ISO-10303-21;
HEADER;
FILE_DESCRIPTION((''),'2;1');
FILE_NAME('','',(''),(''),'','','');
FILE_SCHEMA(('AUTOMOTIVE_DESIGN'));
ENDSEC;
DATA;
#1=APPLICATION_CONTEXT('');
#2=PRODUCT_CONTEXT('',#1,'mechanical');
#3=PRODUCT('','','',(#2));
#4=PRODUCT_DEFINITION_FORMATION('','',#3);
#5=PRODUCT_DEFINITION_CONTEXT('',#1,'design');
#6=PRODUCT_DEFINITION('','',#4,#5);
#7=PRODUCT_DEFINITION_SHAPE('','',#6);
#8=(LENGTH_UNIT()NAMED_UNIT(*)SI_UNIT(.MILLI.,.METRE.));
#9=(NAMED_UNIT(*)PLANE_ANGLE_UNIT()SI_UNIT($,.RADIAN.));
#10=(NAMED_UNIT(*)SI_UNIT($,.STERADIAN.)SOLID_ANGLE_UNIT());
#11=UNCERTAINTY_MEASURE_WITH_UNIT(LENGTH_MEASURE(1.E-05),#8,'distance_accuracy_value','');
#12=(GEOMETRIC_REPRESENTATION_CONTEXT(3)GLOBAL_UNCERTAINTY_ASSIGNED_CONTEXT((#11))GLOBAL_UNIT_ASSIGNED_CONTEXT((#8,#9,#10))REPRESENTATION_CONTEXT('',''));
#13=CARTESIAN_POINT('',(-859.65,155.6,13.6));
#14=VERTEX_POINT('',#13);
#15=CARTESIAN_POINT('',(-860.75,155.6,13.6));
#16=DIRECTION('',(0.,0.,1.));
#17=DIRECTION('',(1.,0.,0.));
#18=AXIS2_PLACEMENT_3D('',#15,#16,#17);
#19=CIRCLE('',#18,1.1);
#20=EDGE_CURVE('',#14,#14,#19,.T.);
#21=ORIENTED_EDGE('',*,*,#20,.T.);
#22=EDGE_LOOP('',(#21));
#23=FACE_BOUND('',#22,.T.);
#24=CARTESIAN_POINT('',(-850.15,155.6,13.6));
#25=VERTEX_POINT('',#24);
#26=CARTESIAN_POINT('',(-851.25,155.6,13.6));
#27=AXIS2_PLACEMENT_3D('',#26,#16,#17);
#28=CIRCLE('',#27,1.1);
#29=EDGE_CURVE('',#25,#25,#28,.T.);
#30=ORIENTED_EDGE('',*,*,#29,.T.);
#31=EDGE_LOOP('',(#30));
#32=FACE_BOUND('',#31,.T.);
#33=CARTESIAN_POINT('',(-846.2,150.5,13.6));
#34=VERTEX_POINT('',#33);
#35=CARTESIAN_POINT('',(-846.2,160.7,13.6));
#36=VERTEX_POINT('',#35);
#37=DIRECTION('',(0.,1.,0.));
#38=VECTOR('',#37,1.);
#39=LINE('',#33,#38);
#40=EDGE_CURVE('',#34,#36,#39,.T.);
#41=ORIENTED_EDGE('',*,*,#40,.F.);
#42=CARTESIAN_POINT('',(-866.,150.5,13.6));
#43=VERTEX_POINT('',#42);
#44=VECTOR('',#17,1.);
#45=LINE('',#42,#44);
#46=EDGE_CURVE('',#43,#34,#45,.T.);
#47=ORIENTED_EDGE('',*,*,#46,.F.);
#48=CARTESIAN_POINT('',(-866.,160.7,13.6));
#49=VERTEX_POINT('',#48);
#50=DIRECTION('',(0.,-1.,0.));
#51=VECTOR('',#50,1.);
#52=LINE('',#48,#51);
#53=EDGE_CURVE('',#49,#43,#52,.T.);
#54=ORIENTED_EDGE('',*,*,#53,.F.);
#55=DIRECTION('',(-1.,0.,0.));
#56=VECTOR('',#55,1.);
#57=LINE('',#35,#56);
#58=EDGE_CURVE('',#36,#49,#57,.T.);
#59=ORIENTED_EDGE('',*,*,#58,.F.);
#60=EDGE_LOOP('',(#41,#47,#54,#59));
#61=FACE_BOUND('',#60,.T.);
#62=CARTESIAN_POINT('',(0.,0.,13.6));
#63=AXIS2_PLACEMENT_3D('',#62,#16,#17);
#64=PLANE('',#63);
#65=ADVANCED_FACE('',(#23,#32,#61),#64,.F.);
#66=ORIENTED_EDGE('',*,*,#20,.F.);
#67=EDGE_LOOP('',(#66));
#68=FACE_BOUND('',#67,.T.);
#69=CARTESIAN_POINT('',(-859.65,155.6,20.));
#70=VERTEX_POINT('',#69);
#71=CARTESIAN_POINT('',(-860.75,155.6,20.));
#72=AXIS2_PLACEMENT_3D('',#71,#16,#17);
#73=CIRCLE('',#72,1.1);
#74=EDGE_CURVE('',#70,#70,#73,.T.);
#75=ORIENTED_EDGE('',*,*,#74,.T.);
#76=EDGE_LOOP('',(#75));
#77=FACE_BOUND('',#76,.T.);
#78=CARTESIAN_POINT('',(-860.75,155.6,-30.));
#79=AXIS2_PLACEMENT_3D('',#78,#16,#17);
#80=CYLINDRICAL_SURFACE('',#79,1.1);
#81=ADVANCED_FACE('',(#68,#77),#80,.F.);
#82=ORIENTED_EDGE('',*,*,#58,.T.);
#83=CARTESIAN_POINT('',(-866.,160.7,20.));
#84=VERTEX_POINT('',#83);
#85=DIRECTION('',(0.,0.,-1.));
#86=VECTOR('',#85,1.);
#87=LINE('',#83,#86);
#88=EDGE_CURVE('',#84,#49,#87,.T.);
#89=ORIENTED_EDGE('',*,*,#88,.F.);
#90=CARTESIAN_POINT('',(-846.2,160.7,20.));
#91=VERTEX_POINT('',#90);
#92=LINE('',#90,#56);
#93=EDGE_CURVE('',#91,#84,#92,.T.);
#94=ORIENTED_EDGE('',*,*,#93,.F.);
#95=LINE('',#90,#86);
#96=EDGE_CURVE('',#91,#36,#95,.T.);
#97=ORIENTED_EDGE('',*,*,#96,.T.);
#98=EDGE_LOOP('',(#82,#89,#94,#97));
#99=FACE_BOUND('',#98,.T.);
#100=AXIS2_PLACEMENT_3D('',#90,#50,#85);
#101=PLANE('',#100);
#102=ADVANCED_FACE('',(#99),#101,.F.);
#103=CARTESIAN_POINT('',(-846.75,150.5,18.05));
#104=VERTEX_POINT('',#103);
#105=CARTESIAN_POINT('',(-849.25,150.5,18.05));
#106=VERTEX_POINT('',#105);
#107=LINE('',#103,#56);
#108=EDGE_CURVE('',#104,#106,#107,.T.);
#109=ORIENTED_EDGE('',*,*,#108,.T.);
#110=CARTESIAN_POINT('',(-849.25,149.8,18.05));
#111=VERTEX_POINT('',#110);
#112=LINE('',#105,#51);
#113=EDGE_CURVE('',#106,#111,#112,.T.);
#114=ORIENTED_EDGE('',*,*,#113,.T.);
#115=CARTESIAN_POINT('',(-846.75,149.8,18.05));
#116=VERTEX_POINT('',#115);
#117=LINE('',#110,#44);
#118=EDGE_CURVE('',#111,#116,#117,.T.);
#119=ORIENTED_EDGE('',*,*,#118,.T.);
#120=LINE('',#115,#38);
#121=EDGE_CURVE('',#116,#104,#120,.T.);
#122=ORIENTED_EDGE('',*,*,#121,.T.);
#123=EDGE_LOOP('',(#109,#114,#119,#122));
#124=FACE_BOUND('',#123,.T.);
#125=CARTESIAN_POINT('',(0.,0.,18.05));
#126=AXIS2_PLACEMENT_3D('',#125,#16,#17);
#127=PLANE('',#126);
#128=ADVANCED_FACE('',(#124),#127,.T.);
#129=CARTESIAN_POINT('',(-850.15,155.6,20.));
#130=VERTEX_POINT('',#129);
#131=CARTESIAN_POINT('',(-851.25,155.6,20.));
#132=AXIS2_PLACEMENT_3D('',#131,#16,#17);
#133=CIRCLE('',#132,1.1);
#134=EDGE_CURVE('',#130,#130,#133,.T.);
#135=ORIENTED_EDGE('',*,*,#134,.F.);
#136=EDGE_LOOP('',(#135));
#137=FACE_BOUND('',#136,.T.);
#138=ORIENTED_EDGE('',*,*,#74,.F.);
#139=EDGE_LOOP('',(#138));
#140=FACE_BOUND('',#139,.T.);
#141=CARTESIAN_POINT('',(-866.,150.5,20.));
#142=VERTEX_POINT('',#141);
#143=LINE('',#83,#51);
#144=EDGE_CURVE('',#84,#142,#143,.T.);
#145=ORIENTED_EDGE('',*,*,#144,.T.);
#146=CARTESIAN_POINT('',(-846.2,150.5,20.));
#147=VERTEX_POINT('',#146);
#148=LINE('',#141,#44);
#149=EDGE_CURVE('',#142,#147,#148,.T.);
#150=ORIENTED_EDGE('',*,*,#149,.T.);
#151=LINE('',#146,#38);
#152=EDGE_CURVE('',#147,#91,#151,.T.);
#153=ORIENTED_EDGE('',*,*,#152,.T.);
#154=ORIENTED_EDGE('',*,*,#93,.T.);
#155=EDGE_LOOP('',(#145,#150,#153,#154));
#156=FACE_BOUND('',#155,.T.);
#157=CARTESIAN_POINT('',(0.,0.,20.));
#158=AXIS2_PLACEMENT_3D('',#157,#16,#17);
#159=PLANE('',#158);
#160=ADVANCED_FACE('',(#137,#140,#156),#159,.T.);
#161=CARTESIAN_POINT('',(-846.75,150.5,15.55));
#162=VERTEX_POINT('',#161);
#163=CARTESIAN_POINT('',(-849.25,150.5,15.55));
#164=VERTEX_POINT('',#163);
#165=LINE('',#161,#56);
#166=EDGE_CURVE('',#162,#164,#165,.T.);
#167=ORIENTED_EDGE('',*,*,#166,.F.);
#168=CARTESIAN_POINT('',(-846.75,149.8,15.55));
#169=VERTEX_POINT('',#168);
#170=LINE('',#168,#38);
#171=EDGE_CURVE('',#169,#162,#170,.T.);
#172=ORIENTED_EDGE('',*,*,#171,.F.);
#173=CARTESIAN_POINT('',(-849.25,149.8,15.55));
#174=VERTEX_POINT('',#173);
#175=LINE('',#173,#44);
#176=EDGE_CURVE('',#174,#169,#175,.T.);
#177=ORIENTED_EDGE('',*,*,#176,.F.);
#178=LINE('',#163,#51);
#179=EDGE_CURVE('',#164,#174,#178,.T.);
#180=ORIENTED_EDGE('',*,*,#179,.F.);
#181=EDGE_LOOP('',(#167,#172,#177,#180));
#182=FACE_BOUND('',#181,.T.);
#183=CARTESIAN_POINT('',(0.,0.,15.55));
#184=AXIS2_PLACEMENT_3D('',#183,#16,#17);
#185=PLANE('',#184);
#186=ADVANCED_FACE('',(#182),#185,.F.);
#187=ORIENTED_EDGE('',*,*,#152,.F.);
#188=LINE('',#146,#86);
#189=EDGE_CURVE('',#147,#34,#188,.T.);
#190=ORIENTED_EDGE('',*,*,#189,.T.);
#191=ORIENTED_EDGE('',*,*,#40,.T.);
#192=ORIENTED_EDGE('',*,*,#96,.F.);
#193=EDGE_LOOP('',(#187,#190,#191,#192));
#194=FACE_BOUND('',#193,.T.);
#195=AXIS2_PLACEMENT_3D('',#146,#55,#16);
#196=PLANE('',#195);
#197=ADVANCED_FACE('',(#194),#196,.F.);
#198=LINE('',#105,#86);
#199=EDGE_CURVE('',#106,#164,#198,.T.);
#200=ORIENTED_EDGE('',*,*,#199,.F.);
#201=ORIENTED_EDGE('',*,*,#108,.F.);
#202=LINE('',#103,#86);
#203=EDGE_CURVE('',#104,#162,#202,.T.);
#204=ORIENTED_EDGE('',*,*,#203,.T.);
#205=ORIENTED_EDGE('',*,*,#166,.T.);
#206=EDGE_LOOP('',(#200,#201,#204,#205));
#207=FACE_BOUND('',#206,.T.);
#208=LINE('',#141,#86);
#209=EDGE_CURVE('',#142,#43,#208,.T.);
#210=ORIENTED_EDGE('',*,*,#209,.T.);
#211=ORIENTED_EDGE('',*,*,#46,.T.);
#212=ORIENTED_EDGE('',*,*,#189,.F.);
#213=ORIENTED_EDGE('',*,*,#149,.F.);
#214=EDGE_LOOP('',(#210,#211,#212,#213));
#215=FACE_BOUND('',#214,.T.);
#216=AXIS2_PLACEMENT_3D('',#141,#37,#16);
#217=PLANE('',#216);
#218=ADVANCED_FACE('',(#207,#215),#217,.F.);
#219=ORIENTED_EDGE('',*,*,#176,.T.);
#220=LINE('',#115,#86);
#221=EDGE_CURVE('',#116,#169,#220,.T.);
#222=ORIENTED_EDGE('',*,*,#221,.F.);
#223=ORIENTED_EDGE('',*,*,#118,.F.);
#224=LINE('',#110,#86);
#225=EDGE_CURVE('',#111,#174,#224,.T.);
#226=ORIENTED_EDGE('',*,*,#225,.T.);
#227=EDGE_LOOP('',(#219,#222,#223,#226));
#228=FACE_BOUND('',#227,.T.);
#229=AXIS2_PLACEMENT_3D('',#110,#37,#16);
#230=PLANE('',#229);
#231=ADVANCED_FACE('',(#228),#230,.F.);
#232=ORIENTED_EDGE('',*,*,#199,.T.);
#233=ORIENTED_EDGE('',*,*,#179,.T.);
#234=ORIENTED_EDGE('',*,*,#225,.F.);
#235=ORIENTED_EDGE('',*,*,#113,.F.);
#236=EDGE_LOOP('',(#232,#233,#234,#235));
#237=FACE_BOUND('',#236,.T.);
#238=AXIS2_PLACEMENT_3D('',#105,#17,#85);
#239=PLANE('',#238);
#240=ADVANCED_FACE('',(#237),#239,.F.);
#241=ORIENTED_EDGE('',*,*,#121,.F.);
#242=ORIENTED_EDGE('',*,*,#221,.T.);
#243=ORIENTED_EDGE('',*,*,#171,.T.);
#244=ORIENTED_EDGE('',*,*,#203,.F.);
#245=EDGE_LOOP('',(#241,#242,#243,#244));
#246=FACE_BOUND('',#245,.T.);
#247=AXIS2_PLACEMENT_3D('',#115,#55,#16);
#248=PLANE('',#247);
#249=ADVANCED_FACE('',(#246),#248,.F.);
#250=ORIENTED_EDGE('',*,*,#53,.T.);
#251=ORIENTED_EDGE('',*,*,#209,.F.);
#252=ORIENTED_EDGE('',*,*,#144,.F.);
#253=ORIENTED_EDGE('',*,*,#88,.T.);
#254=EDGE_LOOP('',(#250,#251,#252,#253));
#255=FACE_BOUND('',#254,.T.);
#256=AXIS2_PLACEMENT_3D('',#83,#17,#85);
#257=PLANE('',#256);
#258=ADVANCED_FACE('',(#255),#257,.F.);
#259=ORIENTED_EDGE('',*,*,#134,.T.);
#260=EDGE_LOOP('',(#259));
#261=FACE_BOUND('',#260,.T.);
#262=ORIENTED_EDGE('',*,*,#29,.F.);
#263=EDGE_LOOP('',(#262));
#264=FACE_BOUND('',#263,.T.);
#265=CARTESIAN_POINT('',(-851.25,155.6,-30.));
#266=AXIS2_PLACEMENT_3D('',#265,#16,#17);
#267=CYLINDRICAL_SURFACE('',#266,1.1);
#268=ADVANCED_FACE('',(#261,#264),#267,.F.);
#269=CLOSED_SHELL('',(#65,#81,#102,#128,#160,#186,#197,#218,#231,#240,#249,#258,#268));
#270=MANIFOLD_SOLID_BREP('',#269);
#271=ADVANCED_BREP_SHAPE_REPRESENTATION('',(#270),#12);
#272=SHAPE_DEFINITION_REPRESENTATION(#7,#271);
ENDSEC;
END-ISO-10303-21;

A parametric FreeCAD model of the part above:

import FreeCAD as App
import Part
import Sketcher


def add_polygon(sketch, points):
    """Adds a closed chain of lines whose ends are joined by coincident constraints."""
    first, n = sketch.GeometryCount, len(points)
    for a, b in zip(points, points[1:] + points[:1]):
        sketch.addGeometry(Part.LineSegment(App.Vector(*a, 0), App.Vector(*b, 0)), False)
    for i in range(n):
        sketch.addConstraint(Sketcher.Constraint("Coincident", first + i, 2, first + (i + 1) % n, 1))

doc = App.newDocument("Part")
body = doc.addObject("PartDesign::Body", "Body")

sketch1 = body.newObject("Sketcher::SketchObject", "Sketch")
sketch1.AttachmentSupport = (doc.getObject("XY_Plane"), [""])
sketch1.MapMode = "FlatFace"
sketch1.AttachmentOffset = App.Placement(App.Vector(0, 0, 13.6), App.Rotation())
add_polygon(sketch1, [(-866, 161), (-866, 150), (-846, 150), (-846, 161)])
sketch1.addConstraint([
    Sketcher.Constraint("Vertical", 0),
    Sketcher.Constraint("Horizontal", 1),
    Sketcher.Constraint("Vertical", 2),
    Sketcher.Constraint("Horizontal", 3),
    Sketcher.Constraint("DistanceX", 1, 1, 1, 2, 19.8),
    Sketcher.Constraint("DistanceY", 0, 2, 0, 1, 10.2),
    Sketcher.Constraint("DistanceX", 0, 2, -1, 1, 866.0),
    Sketcher.Constraint("DistanceY", -1, 1, 0, 2, 150.5),
])
pad1 = body.newObject("PartDesign::Pad", "Pad")
pad1.Profile = sketch1
pad1.Length = 6.4

sketch2 = body.newObject("Sketcher::SketchObject", "Sketch001")
sketch2.AttachmentSupport = (doc.getObject("XY_Plane"), [""])
sketch2.MapMode = "FlatFace"
sketch2.addGeometry([
    Part.Circle(App.Vector(-860.8, 155.6, 0), App.Vector(0, 0, 1), 1.1),
    Part.Circle(App.Vector(-851.2, 155.6, 0), App.Vector(0, 0, 1), 1.1),
], False)
sketch2.addConstraint([
    Sketcher.Constraint("Equal", 0, 1),
    Sketcher.Constraint("Horizontal", 0, 3, 1, 3),
    Sketcher.Constraint("Diameter", 0, 2.2),
    Sketcher.Constraint("DistanceY", -1, 1, 0, 3, 155.6),
    Sketcher.Constraint("DistanceX", 0, 3, 1, 3, 9.5),
    Sketcher.Constraint("DistanceX", 0, 3, -1, 1, 860.75),
])
pocket1 = body.newObject("PartDesign::Pocket", "Pocket")
pocket1.Profile = sketch2
pocket1.Length = 60
pocket1.Midplane = True

sketch3 = body.newObject("Sketcher::SketchObject", "Sketch002")
sketch3.AttachmentSupport = (doc.getObject("XY_Plane"), [""])
sketch3.MapMode = "FlatFace"
sketch3.AttachmentOffset = App.Placement(App.Vector(0, 0, 15.55), App.Rotation())
add_polygon(sketch3, [(-849.2, 150.5), (-849.2, 149.8), (-846.8, 149.8), (-846.8, 150.5)])
sketch3.addConstraint([
    Sketcher.Constraint("Vertical", 0),
    Sketcher.Constraint("Horizontal", 1),
    Sketcher.Constraint("Vertical", 2),
    Sketcher.Constraint("Horizontal", 3),
    Sketcher.Constraint("DistanceX", 1, 1, 1, 2, 2.5),
    Sketcher.Constraint("DistanceY", 0, 2, 0, 1, 0.7),
    Sketcher.Constraint("DistanceY", -1, 1, 0, 2, 149.8),
    Sketcher.Constraint("DistanceX", 0, 2, -1, 1, 849.25),
])
pad2 = body.newObject("PartDesign::Pad", "Pad001")
pad2.Profile = sketch3
pad2.Length = 2.5

doc.recompute()
